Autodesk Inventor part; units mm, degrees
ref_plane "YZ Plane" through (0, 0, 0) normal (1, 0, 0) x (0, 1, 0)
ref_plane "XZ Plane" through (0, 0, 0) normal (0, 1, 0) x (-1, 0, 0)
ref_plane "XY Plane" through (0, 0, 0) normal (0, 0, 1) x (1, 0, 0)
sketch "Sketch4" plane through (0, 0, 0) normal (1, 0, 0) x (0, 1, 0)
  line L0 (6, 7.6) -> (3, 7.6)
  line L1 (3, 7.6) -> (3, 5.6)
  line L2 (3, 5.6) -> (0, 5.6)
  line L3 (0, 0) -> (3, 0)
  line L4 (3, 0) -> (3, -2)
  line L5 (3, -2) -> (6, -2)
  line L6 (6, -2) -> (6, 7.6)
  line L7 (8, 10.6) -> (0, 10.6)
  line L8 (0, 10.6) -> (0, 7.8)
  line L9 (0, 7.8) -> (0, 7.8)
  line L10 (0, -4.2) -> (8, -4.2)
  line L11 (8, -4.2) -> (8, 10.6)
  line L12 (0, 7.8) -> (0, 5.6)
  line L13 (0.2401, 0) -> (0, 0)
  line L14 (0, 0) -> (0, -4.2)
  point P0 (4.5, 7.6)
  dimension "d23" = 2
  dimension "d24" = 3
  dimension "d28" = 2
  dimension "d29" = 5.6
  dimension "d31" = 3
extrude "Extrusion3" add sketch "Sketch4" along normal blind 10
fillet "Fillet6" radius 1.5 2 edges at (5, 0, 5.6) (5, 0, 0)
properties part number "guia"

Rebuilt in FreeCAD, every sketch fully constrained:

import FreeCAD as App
import Part
import Sketcher

V = App.Vector
Q = App.Units.Quantity


def edges_at(feature, points):
    """Names of the edges that pass closest to the given points."""
    edges = feature.Shape.Edges
    near = lambda p: min(range(len(edges)), key=lambda i: edges[i].distToShape(Part.Vertex(*p))[0])
    return sorted({f"Edge{near(p) + 1}" for p in points})

doc = App.newDocument("Part")
body = doc.addObject("PartDesign::Body", "Body")

sketch1 = body.newObject("Sketcher::SketchObject", "Sketch")
sketch1.AttachmentSupport = (doc.getObject("YZ_Plane"), [""])
sketch1.MapMode = "FlatFace"
sketch1.addGeometry(Part.LineSegment(V(3, 7.6, 0), V(6, 7.6, 0)), False)
sketch1.addGeometry(Part.LineSegment(V(6, 7.6, 0), V(6, -2, 0)), False)
sketch1.addGeometry(Part.LineSegment(V(6, -2, 0), V(3, -2, 0)), False)
sketch1.addGeometry(Part.LineSegment(V(3, -2, 0), V(3, 0, 0)), False)
sketch1.addGeometry(Part.LineSegment(V(3, 0, 0), V(0, 0, 0)), False)
sketch1.addGeometry(Part.LineSegment(V(0, 0, 0), V(0, -4.2, 0)), False)
sketch1.addGeometry(Part.LineSegment(V(0, -4.2, 0), V(8, -4.2, 0)), False)
sketch1.addGeometry(Part.LineSegment(V(8, -4.2, 0), V(8, 10.6, 0)), False)
sketch1.addGeometry(Part.LineSegment(V(8, 10.6, 0), V(0, 10.6, 0)), False)
sketch1.addGeometry(Part.LineSegment(V(0, 10.6, 0), V(0, 5.6, 0)), False)
sketch1.addGeometry(Part.LineSegment(V(0, 5.6, 0), V(3, 5.6, 0)), False)
sketch1.addGeometry(Part.LineSegment(V(3, 5.6, 0), V(3, 7.6, 0)), False)
sketch1.addConstraint(Sketcher.Constraint("Coincident", 0, 2, 1, 1))
sketch1.addConstraint(Sketcher.Constraint("Coincident", 1, 2, 2, 1))
sketch1.addConstraint(Sketcher.Constraint("Coincident", 2, 2, 3, 1))
sketch1.addConstraint(Sketcher.Constraint("Coincident", 3, 2, 4, 1))
sketch1.addConstraint(Sketcher.Constraint("Coincident", 4, 2, 5, 1))
sketch1.addConstraint(Sketcher.Constraint("Coincident", 5, 2, 6, 1))
sketch1.addConstraint(Sketcher.Constraint("Coincident", 6, 2, 7, 1))
sketch1.addConstraint(Sketcher.Constraint("Coincident", 7, 2, 8, 1))
sketch1.addConstraint(Sketcher.Constraint("Coincident", 8, 2, 9, 1))
sketch1.addConstraint(Sketcher.Constraint("Coincident", 9, 2, 10, 1))
sketch1.addConstraint(Sketcher.Constraint("Coincident", 10, 2, 11, 1))
sketch1.addConstraint(Sketcher.Constraint("Coincident", 11, 2, 0, 1))
sketch1.addConstraint(Sketcher.Constraint("Horizontal", 0))
sketch1.addConstraint(Sketcher.Constraint("Vertical", 1))
sketch1.addConstraint(Sketcher.Constraint("Horizontal", 2))
sketch1.addConstraint(Sketcher.Constraint("Vertical", 3))
sketch1.addConstraint(Sketcher.Constraint("Horizontal", 4))
sketch1.addConstraint(Sketcher.Constraint("Vertical", 5))
sketch1.addConstraint(Sketcher.Constraint("Horizontal", 6))
sketch1.addConstraint(Sketcher.Constraint("Vertical", 7))
sketch1.addConstraint(Sketcher.Constraint("Horizontal", 8))
sketch1.addConstraint(Sketcher.Constraint("Vertical", 9))
sketch1.addConstraint(Sketcher.Constraint("Horizontal", 10))
sketch1.addConstraint(Sketcher.Constraint("Vertical", 11))
sketch1.addConstraint(Sketcher.Constraint("Coincident", 4, 2, -1, 1))
sketch1.addConstraint(Sketcher.Constraint("PointOnObject", 8, 2, -2))
sketch1.addConstraint(Sketcher.Constraint("Vertical", 3, 2, 10, 2))
sketch1.addConstraint(Sketcher.Constraint("Equal", 2, 4))
sketch1.addConstraint(Sketcher.Constraint("Equal", 3, 11))
sketch1.addConstraint(Sketcher.Constraint("DistanceX", 0, 1, 0, 2, Q("3 mm")))
sketch1.addConstraint(Sketcher.Constraint("DistanceY", 3, 1, 3, 2, Q("2 mm")))
sketch1.addConstraint(Sketcher.Constraint("DistanceX", 1, 2, 6, 2, Q("2 mm")))
sketch1.addConstraint(Sketcher.Constraint("DistanceY", 0, 2, 7, 2, Q("3 mm")))
sketch1.addConstraint(Sketcher.Constraint("DistanceY", -1, 1, 9, 2, Q("5.6 mm")))
sketch1.addConstraint(Sketcher.Constraint("DistanceY", 5, 2, 5, 1, Q("4.2 mm")))
pad1 = body.newObject("PartDesign::Pad", "Pad")
pad1.Profile = sketch1
pad1.Length = 10
doc.recompute()

fillet = body.newObject("PartDesign::Fillet", "Fillet")
fillet.Base = (pad1, edges_at(pad1, [(5, 0, 5.6), (5, 0, 0)]))
fillet.Radius = 1.5

doc.recompute()
